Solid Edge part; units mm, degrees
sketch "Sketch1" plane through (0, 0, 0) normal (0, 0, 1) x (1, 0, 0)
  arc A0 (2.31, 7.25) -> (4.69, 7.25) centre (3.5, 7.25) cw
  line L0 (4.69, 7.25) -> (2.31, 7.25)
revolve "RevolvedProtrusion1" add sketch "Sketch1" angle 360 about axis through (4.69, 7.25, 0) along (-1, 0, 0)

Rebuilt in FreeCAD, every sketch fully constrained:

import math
import FreeCAD as App
import Part
import Sketcher
from FreeCAD import Vector

doc = App.newDocument("Part")
body = doc.addObject("PartDesign::Body", "Body")

# Sketch on XY plane
sketch1 = doc.addObject("Sketcher::SketchObject", "Sketch")
body.addObject(sketch1)
sketch1.AttachmentSupport = (doc.XY_Plane, [""])
sketch1.MapMode = "FlatFace"
sketch1.addGeometry(Part.ArcOfCircle(Part.Circle(Vector(3.5, 7.2, 0), Vector(0, 0, 1), 1.2), math.radians(0), math.radians(180)), False)
sketch1.addGeometry(Part.LineSegment(Vector(2.3, 7.2, 0), Vector(4.7, 7.2, 0)), False)
sketch1.addGeometry(Part.LineSegment(Vector(4.7, 7.2, 0), Vector(2.3, 7.2, 0)), True)  # axis
sketch1.addConstraint(Sketcher.Constraint("Coincident", 0, 1, 1, 2))
sketch1.addConstraint(Sketcher.Constraint("Coincident", 1, 1, 0, 2))
sketch1.addConstraint(Sketcher.Constraint("Horizontal", 1))
sketch1.addConstraint(Sketcher.Constraint("Horizontal", 2))
sketch1.addConstraint(Sketcher.Constraint("Coincident", 2, 1, 0, 1))
sketch1.addConstraint(Sketcher.Constraint("Equal", 1, 2))
sketch1.addConstraint(Sketcher.Constraint("Radius", 0, 1.19))
sketch1.addConstraint(Sketcher.Constraint("DistanceX", -1, 1, 0, 3, 3.5))
sketch1.addConstraint(Sketcher.Constraint("DistanceY", -1, 1, 0, 3, 7.25))
sketch1.addConstraint(Sketcher.Constraint("DistanceY", -1, 1, 0, 1, 7.25))
revolution = doc.addObject("PartDesign::Revolution", "Revolution")
body.addObject(revolution)
revolution.Profile = sketch1
revolution.ReferenceAxis = (sketch1, ["Axis0"])
revolution.Angle = 360

doc.recompute()
